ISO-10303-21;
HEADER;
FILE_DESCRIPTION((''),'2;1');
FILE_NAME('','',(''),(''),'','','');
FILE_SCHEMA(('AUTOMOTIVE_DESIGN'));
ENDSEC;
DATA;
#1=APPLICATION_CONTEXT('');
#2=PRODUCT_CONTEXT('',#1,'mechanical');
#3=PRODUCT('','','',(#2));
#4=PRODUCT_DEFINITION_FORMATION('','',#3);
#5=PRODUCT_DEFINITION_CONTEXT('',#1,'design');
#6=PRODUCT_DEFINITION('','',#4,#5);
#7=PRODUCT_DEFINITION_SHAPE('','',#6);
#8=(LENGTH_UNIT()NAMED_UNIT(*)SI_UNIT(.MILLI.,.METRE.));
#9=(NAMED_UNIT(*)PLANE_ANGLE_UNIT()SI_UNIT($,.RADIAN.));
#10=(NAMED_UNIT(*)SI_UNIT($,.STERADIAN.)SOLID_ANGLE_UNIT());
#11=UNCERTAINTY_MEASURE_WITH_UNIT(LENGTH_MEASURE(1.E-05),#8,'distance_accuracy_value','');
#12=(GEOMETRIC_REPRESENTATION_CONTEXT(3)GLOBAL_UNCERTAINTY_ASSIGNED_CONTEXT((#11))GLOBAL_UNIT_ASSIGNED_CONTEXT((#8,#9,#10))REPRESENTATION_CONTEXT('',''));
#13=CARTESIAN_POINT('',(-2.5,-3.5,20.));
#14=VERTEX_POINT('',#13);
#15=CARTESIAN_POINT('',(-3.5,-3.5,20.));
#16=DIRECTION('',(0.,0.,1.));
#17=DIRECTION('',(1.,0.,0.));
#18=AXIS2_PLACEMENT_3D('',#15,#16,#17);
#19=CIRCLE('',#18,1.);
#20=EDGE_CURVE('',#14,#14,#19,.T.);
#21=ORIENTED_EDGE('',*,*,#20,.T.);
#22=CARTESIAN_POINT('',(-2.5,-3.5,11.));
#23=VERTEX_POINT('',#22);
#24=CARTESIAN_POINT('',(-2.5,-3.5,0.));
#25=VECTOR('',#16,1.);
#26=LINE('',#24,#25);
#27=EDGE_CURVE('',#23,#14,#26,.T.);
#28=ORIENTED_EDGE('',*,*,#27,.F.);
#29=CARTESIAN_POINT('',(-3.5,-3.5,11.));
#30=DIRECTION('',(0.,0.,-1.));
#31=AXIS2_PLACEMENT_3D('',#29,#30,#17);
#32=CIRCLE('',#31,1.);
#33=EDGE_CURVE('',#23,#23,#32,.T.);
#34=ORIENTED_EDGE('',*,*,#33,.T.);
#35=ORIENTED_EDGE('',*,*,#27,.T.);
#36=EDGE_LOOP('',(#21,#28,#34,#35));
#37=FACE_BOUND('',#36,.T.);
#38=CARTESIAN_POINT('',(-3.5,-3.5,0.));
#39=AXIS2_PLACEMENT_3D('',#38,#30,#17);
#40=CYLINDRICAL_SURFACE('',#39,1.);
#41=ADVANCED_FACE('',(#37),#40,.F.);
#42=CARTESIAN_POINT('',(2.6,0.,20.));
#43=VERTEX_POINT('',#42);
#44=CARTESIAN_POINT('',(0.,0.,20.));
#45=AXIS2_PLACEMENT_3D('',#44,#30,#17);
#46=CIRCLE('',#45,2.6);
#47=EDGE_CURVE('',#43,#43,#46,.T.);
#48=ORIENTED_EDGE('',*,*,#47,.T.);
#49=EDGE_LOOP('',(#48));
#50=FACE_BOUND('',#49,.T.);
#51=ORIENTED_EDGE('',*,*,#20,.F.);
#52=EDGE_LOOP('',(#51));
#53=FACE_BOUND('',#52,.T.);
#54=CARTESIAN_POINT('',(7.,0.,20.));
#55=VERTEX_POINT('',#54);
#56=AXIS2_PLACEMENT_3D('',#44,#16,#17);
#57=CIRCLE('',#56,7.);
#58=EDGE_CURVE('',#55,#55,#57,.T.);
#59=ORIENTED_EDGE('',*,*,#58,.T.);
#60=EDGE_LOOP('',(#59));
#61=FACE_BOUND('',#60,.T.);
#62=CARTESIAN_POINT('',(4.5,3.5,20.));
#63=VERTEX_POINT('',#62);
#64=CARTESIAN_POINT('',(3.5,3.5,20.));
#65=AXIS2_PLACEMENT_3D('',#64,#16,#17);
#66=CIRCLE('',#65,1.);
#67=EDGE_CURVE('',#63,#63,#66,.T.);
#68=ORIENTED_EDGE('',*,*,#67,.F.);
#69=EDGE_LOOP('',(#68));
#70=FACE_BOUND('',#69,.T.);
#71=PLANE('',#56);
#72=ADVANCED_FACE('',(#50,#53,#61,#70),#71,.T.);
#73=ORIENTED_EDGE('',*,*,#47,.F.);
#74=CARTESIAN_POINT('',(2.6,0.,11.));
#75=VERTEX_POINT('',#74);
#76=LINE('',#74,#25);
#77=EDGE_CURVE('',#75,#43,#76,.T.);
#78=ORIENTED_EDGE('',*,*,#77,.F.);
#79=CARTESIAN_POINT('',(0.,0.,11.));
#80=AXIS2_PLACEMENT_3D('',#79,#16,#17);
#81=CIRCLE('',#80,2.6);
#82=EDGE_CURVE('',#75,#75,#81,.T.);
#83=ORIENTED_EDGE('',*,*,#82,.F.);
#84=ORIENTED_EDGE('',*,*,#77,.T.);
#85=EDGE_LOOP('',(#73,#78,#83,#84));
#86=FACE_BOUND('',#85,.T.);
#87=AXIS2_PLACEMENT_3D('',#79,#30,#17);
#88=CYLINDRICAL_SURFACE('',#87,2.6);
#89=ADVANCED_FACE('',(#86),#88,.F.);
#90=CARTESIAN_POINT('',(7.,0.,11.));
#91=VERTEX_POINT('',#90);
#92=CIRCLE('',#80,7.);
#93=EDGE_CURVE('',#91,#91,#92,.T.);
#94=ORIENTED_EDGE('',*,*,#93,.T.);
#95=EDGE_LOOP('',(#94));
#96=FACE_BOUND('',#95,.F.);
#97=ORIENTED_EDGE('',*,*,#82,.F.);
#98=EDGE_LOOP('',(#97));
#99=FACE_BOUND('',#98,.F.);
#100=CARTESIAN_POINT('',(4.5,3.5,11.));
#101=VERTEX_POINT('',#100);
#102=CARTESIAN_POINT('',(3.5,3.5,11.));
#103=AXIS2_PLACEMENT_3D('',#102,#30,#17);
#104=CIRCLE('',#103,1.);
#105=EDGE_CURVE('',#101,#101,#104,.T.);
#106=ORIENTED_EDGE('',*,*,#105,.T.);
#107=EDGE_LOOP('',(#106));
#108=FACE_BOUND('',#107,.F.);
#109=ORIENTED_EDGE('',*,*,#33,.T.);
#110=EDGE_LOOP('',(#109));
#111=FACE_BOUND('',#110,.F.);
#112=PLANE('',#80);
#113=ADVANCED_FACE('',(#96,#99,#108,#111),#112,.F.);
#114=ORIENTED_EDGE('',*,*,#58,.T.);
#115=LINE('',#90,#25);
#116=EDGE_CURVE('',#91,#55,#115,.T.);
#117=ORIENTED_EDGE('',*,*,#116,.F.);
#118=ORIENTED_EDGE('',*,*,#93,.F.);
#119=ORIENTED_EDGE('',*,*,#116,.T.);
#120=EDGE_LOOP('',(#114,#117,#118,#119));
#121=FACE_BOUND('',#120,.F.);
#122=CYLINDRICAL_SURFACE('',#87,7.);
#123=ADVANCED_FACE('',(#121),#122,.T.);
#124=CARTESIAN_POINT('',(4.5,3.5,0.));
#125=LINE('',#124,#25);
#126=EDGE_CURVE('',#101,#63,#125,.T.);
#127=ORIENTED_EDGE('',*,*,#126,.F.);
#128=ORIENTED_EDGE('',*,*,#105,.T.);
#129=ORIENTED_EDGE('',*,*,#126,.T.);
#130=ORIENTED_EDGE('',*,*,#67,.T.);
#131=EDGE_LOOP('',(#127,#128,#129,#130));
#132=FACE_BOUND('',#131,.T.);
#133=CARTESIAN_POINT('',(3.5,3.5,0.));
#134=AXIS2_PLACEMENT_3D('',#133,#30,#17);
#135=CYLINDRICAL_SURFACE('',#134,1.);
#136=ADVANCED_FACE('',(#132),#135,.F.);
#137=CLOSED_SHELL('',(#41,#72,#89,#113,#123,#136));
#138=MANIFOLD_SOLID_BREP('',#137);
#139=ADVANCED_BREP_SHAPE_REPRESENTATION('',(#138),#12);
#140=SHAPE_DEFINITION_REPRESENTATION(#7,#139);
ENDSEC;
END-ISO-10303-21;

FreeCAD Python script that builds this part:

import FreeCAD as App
import Part
import Sketcher
Q = App.Units.Quantity

doc = App.newDocument("Part")
body = doc.addObject("PartDesign::Body", "Body")

sketch1 = doc.addObject("Sketcher::SketchObject", "Sketch")
body.addObject(sketch1)
sketch1.AttachmentSupport = (doc.XY_Plane, [""])
sketch1.MapMode = "FlatFace"
sketch1.addGeometry(Part.Circle(App.Vector(-3.5, -3.5, 0), App.Vector(0, 0, 1), 1), False)
sketch1.addConstraint(Sketcher.Constraint("Diameter", 0, Q("2 mm")))
sketch1.addConstraint(Sketcher.Constraint("DistanceX", 0, 3, -1, 1, Q("3.5 mm")))
sketch1.addConstraint(Sketcher.Constraint("DistanceY", 0, 3, -1, 1, Q("3.5 mm")))
pad1 = doc.addObject("PartDesign::Pad", "Pad")
body.addObject(pad1)
pad1.Profile = sketch1
pad1.Length = 20
body2 = doc.addObject("PartDesign::Body", "Body001")
body2.AllowCompound = True

sketch2 = doc.addObject("Sketcher::SketchObject", "Sketch001")
body2.addObject(sketch2)
sketch2.AttachmentSupport = (doc.getObject("XY_Plane001"), [""])
sketch2.MapMode = "FlatFace"
sketch2.addGeometry(Part.Circle(App.Vector(3.5, 3.5, 0), App.Vector(0, 0, 1), 1), False)
sketch2.addConstraint(Sketcher.Constraint("Diameter", 0, Q("2 mm")))
sketch2.addConstraint(Sketcher.Constraint("DistanceX", -1, 1, 0, 3, Q("3.5 mm")))
sketch2.addConstraint(Sketcher.Constraint("DistanceY", -1, 1, 0, 3, Q("3.5 mm")))
pad2 = doc.addObject("PartDesign::Pad", "Pad001")
body2.addObject(pad2)
pad2.Profile = sketch2
pad2.Length = 20
doc.recompute()

boolean = doc.addObject("PartDesign::Boolean", "Boolean")
body2.addObject(boolean)
boolean.Type = "Fuse"
boolean.addObjects([body])
body3 = doc.addObject("PartDesign::Body", "Body002")

sketch3 = doc.addObject("Sketcher::SketchObject", "Sketch002")
body3.addObject(sketch3)
sketch3.AttachmentSupport = (doc.getObject("XY_Plane002"), [""])
sketch3.MapMode = "FlatFace"
sketch3.AttachmentOffset = App.Placement(App.Vector(0, 0, 13), App.Rotation())
sketch3.addGeometry(Part.Circle(App.Vector(0, 0, 0), App.Vector(0, 0, 1), 2.6), False)
sketch3.addConstraint(Sketcher.Constraint("Coincident", 0, 3, -1, 1))
sketch3.addConstraint(Sketcher.Constraint("Diameter", 0, Q("5.2 mm")))
pad3 = doc.addObject("PartDesign::Pad", "Pad002")
body3.addObject(pad3)
pad3.Profile = sketch3
pad3.Length = 12
body4 = doc.addObject("PartDesign::Body", "Body003")

sketch4 = doc.addObject("Sketcher::SketchObject", "Sketch003")
body4.addObject(sketch4)
sketch4.AttachmentSupport = (doc.getObject("XY_Plane003"), [""])
sketch4.MapMode = "FlatFace"
sketch4.AttachmentOffset = App.Placement(App.Vector(0, 0, 13), App.Rotation())
sketch4.addGeometry(Part.Circle(App.Vector(0, 0, 0), App.Vector(0, 0, 1), 7), False)
sketch4.addConstraint(Sketcher.Constraint("Coincident", 0, 3, -1, 1))
sketch4.addConstraint(Sketcher.Constraint("Diameter", 0, Q("14 mm")))
pad4 = doc.addObject("PartDesign::Pad", "Pad003")
body4.addObject(pad4)
pad4.Profile = sketch4
pad4.Length = 9
doc.recompute()

boolean2 = doc.addObject("PartDesign::Boolean", "Boolean001")
body4.addObject(boolean2)
boolean2.Type = "Cut"
boolean2.addObjects([body3])
body5 = doc.addObject("PartDesign::Body", "Body004")
doc.recompute()

body4.Placement = App.Placement(App.Vector(0, 0, -2), App.Rotation(App.Vector(0, 0, 1), 0))
boolean3 = doc.addObject("PartDesign::Boolean", "Boolean002")
body5.addObject(boolean3)
boolean3.Type = "Fuse"
boolean3.addObjects([body4])
doc.recompute()

boolean4 = doc.addObject("PartDesign::Boolean", "Boolean003")
body5.addObject(boolean4)
boolean4.Type = "Cut"
boolean4.addObjects([body2])

doc.recompute()
